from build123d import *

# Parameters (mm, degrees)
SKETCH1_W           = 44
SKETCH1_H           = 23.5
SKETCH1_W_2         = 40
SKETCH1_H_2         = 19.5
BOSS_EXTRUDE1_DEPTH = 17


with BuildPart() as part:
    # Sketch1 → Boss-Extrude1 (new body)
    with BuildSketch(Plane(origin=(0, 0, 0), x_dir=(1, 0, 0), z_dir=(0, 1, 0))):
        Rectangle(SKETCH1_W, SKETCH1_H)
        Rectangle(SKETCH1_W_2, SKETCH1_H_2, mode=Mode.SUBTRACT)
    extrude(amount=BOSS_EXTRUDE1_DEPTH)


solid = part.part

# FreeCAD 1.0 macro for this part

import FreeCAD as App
import Part
import Sketcher
from FreeCAD import Vector

doc = App.newDocument("Part")
body = doc.addObject("PartDesign::Body", "Body")

# Sketch on XZ plane
sketch1 = body.newObject("Sketcher::SketchObject", "Sketch")
sketch1.AttachmentSupport = (doc.getObject("XZ_Plane"), [""])
sketch1.MapMode = "FlatFace"
sketch1.addGeometry(Part.LineSegment(Vector(-22, -11.75, 0), Vector(-22, 11.75, 0)), False)
sketch1.addGeometry(Part.LineSegment(Vector(-22, 11.75, 0), Vector(22, 11.75, 0)), False)
sketch1.addGeometry(Part.LineSegment(Vector(22, 11.75, 0), Vector(22, -11.75, 0)), False)
sketch1.addGeometry(Part.LineSegment(Vector(22, -11.75, 0), Vector(-22, -11.75, 0)), False)
sketch1.addGeometry(Part.LineSegment(Vector(20, 9.75, 0), Vector(-20, 9.75, 0)), False)
sketch1.addGeometry(Part.LineSegment(Vector(-20, 9.75, 0), Vector(-20, -9.75, 0)), False)
sketch1.addGeometry(Part.LineSegment(Vector(-20, -9.75, 0), Vector(20, -9.75, 0)), False)
sketch1.addGeometry(Part.LineSegment(Vector(20, -9.75, 0), Vector(20, 9.75, 0)), False)
sketch1.addConstraint(Sketcher.Constraint("Coincident", 0, 2, 1, 1))
sketch1.addConstraint(Sketcher.Constraint("Coincident", 1, 2, 2, 1))
sketch1.addConstraint(Sketcher.Constraint("Coincident", 2, 2, 3, 1))
sketch1.addConstraint(Sketcher.Constraint("Coincident", 3, 2, 0, 1))
sketch1.addConstraint(Sketcher.Constraint("Coincident", 4, 2, 5, 1))
sketch1.addConstraint(Sketcher.Constraint("Coincident", 5, 2, 6, 1))
sketch1.addConstraint(Sketcher.Constraint("Coincident", 6, 2, 7, 1))
sketch1.addConstraint(Sketcher.Constraint("Coincident", 7, 2, 4, 1))
sketch1.addConstraint(Sketcher.Constraint("Vertical", 0))
sketch1.addConstraint(Sketcher.Constraint("Horizontal", 1))
sketch1.addConstraint(Sketcher.Constraint("Vertical", 2))
sketch1.addConstraint(Sketcher.Constraint("Horizontal", 3))
sketch1.addConstraint(Sketcher.Constraint("Horizontal", 4))
sketch1.addConstraint(Sketcher.Constraint("Vertical", 5))
sketch1.addConstraint(Sketcher.Constraint("Horizontal", 6))
sketch1.addConstraint(Sketcher.Constraint("Vertical", 7))
sketch1.addConstraint(Sketcher.Constraint("Symmetric", 0, 2, 2, 2, -1, 1))
sketch1.addConstraint(Sketcher.Constraint("Symmetric", 4, 2, 6, 2, -1, 1))
sketch1.addConstraint(Sketcher.Constraint("DistanceX", 1, 1, 1, 2, 44.0))
sketch1.addConstraint(Sketcher.Constraint("DistanceX", 4, 2, 4, 1, 40.0))
sketch1.addConstraint(Sketcher.Constraint("DistanceY", 0, 1, 0, 2, 23.5))
sketch1.addConstraint(Sketcher.Constraint("DistanceY", 5, 2, 5, 1, 19.5))
pad1 = body.newObject("PartDesign::Pad", "Pad")
pad1.Profile = sketch1
pad1.Length = 17
pad1.Reversed = True

doc.recompute()
